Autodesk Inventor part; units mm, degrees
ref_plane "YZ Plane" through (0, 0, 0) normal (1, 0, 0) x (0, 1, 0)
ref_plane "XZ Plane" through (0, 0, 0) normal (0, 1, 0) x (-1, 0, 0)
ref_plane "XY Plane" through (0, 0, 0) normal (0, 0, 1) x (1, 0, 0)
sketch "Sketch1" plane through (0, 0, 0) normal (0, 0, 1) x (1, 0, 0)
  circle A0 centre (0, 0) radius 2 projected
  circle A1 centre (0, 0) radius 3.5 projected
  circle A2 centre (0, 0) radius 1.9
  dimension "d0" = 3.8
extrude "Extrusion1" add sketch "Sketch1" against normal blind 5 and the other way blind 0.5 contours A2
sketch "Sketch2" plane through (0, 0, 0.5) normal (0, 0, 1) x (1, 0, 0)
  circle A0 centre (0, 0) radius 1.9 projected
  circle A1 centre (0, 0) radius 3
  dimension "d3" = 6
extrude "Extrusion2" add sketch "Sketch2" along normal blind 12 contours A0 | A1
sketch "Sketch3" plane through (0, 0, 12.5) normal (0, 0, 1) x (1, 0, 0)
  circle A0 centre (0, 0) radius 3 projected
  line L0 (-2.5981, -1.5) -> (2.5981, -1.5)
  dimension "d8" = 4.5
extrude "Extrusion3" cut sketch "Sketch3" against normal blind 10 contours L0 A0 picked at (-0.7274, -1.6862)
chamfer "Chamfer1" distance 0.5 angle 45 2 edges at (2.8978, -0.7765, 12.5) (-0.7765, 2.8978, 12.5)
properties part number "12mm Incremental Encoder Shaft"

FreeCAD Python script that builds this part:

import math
import FreeCAD as App
import Part
import Sketcher

V = App.Vector
Q = App.Units.Quantity


def edges_at(feature, points):
    """Names of the edges that pass closest to the given points."""
    edges = feature.Shape.Edges
    near = lambda p: min(range(len(edges)), key=lambda i: edges[i].distToShape(Part.Vertex(*p))[0])
    return sorted({f"Edge{near(p) + 1}" for p in points})

doc = App.newDocument("Part")
body = doc.addObject("PartDesign::Body", "Body")

# Sketch on XY plane
sketch1 = body.newObject("Sketcher::SketchObject", "Sketch")
sketch1.AttachmentSupport = (doc.getObject("XY_Plane"), [""])
sketch1.MapMode = "FlatFace"
sketch1.addGeometry(Part.Circle(V(0, 0, 0), V(0, 0, 1), 1.9), False)
sketch1.addConstraint(Sketcher.Constraint("Coincident", 0, 3, -1, 1))
sketch1.addConstraint(Sketcher.Constraint("Diameter", 0, Q("3.8 mm")))
pad1 = body.newObject("PartDesign::Pad", "Pad")
pad1.Profile = sketch1
pad1.Type = "TwoLengths"
pad1.Length = 5
pad1.Length2 = 0.5
pad1.Reversed = True

# Sketch on XY plane
sketch2 = body.newObject("Sketcher::SketchObject", "Sketch001")
sketch2.AttachmentSupport = (doc.getObject("XY_Plane"), [""])
sketch2.MapMode = "FlatFace"
sketch2.AttachmentOffset = App.Placement(V(0, 0, 0.5), App.Rotation())
sketch2.addGeometry(Part.Circle(V(0, 0, 0), V(0, 0, 1), 3), False)
sketch2.addConstraint(Sketcher.Constraint("Coincident", 0, 3, -1, 1))
sketch2.addConstraint(Sketcher.Constraint("Diameter", 0, Q("6 mm")))
pad2 = body.newObject("PartDesign::Pad", "Pad001")
pad2.Profile = sketch2
pad2.Length = 12

# Sketch on XY plane
sketch3 = body.newObject("Sketcher::SketchObject", "Sketch002")
sketch3.AttachmentSupport = (doc.getObject("XY_Plane"), [""])
sketch3.MapMode = "FlatFace"
sketch3.AttachmentOffset = App.Placement(V(0, 0, 12.5), App.Rotation())
sketch3.addGeometry(Part.LineSegment(V(2.5981, -1.5, 0), V(-2.5981, -1.5, 0)), False)
sketch3.addGeometry(Part.ArcOfCircle(Part.Circle(V(0, 0, 0), V(0, 0, 1), 3), math.radians(-150.000227), math.radians(-29.999773)), False)
sketch3.addConstraint(Sketcher.Constraint("Coincident", 0, 1, 1, 2))
sketch3.addConstraint(Sketcher.Constraint("Coincident", 1, 1, 0, 2))
sketch3.addConstraint(Sketcher.Constraint("Horizontal", 0))
sketch3.addConstraint(Sketcher.Constraint("Coincident", 1, 3, -1, 1))
sketch3.addConstraint(Sketcher.Constraint("Radius", 1, Q("3 mm")))
sketch3.addConstraint(Sketcher.Constraint("DistanceY", 0, 1, -1, 1, Q("1.5 mm")))
pocket1 = body.newObject("PartDesign::Pocket", "Pocket")
pocket1.Profile = sketch3
pocket1.Length = 10
doc.recompute()

chamfer = body.newObject("PartDesign::Chamfer", "Chamfer")
chamfer.Base = (pocket1, edges_at(pocket1, [(2.898, -0.776, 12.5), (-0.776, 2.898, 12.5)]))
chamfer.Size = 0.5

doc.recompute()
